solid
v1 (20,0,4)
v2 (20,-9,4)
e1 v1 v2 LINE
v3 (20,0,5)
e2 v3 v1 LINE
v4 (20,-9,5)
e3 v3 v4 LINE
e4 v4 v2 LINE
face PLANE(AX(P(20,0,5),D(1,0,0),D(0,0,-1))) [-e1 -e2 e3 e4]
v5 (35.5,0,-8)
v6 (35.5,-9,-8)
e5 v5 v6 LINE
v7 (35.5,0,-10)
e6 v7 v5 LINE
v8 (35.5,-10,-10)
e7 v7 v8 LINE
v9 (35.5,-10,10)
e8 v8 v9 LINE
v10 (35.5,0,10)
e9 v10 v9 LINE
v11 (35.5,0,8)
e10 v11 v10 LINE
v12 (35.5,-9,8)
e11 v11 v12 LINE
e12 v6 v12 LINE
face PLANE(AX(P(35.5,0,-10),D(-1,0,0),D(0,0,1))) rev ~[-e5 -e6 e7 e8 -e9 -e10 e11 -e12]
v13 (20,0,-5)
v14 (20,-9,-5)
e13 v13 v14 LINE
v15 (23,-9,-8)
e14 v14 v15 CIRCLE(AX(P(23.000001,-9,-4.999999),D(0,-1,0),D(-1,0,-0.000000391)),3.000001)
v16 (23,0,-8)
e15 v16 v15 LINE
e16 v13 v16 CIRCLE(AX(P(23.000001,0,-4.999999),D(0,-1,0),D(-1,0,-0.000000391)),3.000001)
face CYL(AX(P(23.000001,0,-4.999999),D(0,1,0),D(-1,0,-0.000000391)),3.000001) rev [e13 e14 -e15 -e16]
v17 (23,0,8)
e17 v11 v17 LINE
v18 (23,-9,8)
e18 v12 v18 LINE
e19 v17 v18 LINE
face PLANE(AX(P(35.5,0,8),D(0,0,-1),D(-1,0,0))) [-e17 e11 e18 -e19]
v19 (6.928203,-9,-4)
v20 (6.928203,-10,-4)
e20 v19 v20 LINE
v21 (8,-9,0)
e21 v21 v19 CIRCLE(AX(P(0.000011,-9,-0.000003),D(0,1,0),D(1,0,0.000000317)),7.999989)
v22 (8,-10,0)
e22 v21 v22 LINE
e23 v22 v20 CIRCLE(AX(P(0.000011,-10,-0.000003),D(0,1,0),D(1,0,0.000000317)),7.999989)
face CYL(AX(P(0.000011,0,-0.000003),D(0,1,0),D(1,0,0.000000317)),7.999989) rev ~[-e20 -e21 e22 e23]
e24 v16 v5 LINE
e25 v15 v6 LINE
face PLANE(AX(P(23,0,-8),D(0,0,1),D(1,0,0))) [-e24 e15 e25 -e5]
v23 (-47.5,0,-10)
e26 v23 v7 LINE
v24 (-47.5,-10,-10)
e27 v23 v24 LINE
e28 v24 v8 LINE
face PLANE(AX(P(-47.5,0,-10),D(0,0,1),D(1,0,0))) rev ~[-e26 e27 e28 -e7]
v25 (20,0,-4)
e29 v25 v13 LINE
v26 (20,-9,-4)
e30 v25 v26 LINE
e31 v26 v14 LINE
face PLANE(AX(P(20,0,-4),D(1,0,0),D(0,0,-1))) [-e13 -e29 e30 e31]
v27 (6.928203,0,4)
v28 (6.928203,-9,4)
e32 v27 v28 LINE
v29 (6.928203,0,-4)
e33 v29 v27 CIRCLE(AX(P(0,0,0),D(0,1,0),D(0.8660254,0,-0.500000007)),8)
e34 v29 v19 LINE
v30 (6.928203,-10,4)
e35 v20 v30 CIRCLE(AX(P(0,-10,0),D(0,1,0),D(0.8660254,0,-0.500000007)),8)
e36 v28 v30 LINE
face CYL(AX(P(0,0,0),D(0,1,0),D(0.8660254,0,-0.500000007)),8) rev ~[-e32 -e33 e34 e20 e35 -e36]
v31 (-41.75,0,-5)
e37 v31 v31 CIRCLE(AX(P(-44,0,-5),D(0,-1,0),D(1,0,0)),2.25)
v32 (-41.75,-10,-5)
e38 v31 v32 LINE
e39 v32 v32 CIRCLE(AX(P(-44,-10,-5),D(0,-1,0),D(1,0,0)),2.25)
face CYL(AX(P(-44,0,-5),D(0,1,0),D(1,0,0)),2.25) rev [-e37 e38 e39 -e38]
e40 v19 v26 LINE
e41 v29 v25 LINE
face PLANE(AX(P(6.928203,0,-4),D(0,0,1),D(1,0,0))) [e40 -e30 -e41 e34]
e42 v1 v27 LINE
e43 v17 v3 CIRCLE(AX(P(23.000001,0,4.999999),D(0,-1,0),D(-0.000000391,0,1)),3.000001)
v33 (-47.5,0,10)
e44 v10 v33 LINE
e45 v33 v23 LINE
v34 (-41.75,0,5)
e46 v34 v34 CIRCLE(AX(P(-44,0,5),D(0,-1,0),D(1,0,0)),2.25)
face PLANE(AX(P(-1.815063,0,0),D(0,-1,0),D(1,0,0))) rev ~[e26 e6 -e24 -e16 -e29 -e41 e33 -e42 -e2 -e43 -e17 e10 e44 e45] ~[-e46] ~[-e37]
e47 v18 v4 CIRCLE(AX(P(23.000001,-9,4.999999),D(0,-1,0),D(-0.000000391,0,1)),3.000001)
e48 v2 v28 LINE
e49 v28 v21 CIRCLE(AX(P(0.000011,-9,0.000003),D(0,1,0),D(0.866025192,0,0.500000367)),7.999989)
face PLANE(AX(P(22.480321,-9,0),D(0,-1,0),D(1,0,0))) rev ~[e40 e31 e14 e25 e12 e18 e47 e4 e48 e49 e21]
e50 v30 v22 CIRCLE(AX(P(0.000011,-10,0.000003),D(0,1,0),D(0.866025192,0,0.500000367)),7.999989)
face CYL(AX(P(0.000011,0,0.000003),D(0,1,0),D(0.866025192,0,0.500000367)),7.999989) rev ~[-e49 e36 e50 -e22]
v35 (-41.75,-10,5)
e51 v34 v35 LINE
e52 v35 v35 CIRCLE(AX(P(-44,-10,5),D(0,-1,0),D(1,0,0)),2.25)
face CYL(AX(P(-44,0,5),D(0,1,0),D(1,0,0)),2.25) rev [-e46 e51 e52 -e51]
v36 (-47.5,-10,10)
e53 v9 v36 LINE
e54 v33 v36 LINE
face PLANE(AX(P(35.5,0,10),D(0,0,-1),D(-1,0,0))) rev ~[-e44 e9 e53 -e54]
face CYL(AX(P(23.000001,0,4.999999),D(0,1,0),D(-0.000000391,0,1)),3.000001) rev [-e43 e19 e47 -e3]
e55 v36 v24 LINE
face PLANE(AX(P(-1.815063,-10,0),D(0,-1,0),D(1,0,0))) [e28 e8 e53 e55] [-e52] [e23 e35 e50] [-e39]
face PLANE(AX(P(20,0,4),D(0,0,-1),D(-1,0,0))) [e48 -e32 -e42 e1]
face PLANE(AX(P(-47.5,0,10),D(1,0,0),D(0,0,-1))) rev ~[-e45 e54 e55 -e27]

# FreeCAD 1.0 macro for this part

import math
import FreeCAD as App
import Part
import Sketcher

V = App.Vector
Q = App.Units.Quantity


def add_polygon(sketch, points):
    """Adds a closed chain of lines whose ends are joined by coincident constraints."""
    first, n = sketch.GeometryCount, len(points)
    for a, b in zip(points, points[1:] + points[:1]):
        sketch.addGeometry(Part.LineSegment(App.Vector(*a, 0), App.Vector(*b, 0)), False)
    for i in range(n):
        sketch.addConstraint(Sketcher.Constraint("Coincident", first + i, 2, first + (i + 1) % n, 1))

doc = App.newDocument("Part")
body = doc.addObject("PartDesign::Body", "Body")

# Sketch on XZ plane
sketch1 = body.newObject("Sketcher::SketchObject", "Sketch")
sketch1.AttachmentSupport = (doc.getObject("XZ_Plane"), [""])
sketch1.MapMode = "FlatFace"
add_polygon(sketch1, [(35.5, 10), (-47.5, 10), (-47.5, -10), (35.5, -10)])  # lines 0-3
sketch1.addGeometry(Part.ArcOfCircle(Part.Circle(V(0, 0, 0), V(0, 0, 1), 8), math.radians(30), math.radians(330)), False)  # 4
sketch1.addGeometry(Part.ArcOfCircle(Part.Circle(V(0, 0, 0), V(0, 0, 1), 8), math.radians(0), math.radians(30)), False)  # 5
sketch1.addGeometry(Part.ArcOfCircle(Part.Circle(V(0, 0, 0), V(0, 0, 1), 8), math.radians(-30), math.radians(0)), False)  # 6
sketch1.addGeometry(Part.Circle(V(-44, -5, 0), V(0, 0, 1), 2.2), False)  # 7
sketch1.addGeometry(Part.Circle(V(-44, 5, 0), V(0, 0, 1), 2.2), False)  # 8
sketch1.addConstraint([
    Sketcher.Constraint("Tangent", 4, 1, 5, 2),
    Sketcher.Constraint("Tangent", 5, 1, 6, 2),
    Sketcher.Constraint("Tangent", 6, 1, 4, 2),
    Sketcher.Constraint("Horizontal", 0),
    Sketcher.Constraint("Vertical", 1),
    Sketcher.Constraint("Horizontal", 2),
    Sketcher.Constraint("Vertical", 3),
    Sketcher.Constraint("Coincident", 4, 3, -1, 1),
    Sketcher.Constraint("Equal", 7, 8),
    Sketcher.Constraint("Symmetric", 7, 3, 8, 3, -1),
    Sketcher.Constraint("PointOnObject", 5, 1, -1),
    Sketcher.Constraint("Vertical", 4, 1, 6, 1),
    Sketcher.Constraint("Radius", 4, Q("8 mm")),
    Sketcher.Constraint("Diameter", 7, Q("4.5 mm")),
    Sketcher.Constraint("DistanceX", 0, 2, 0, 1, Q("83 mm")),
    Sketcher.Constraint("DistanceY", 1, 2, 1, 1, Q("20 mm")),
    Sketcher.Constraint("DistanceX", 7, 3, -1, 1, Q("44 mm")),
    Sketcher.Constraint("DistanceY", 7, 3, -1, 1, Q("5 mm")),
    Sketcher.Constraint("DistanceY", -1, 1, 0, 2, Q("10 mm")),
    Sketcher.Constraint("DistanceY", -1, 1, 4, 1, Q("4 mm")),
    Sketcher.Constraint("DistanceX", 0, 2, -1, 1, Q("47.5 mm")),
])
pad1 = body.newObject("PartDesign::Pad", "Pad")
pad1.Profile = sketch1
pad1.Length = 10

# Sketch on XZ plane
sketch2 = body.newObject("Sketcher::SketchObject", "Sketch001")
sketch2.AttachmentSupport = (doc.getObject("XZ_Plane"), [""])
sketch2.MapMode = "FlatFace"
sketch2.addGeometry([
    Part.LineSegment(V(35.5, -8, 0), V(35.5, 8, 0)),  # 0
    Part.LineSegment(V(35.5, 8, 0), V(23, 8, 0)),  # 1
    Part.ArcOfCircle(Part.Circle(V(23, 5, 0), V(0, 0, 1), 3), math.radians(90), math.radians(180)),  # 2
    Part.LineSegment(V(20, 5, 0), V(20, 4, 0)),  # 3
    Part.LineSegment(V(20, 4, 0), V(6.9, 4, 0)),  # 4
    Part.ArcOfCircle(Part.Circle(V(0, 0, 0), V(0, 0, 1), 8), math.radians(0), math.radians(30)),  # 5
    Part.ArcOfCircle(Part.Circle(V(0, 0, 0), V(0, 0, 1), 8), math.radians(-30), math.radians(0)),  # 6
    Part.LineSegment(V(6.9, -4, 0), V(20, -4, 0)),  # 7
    Part.LineSegment(V(20, -4, 0), V(20, -5, 0)),  # 8
    Part.ArcOfCircle(Part.Circle(V(23, -5, 0), V(0, 0, 1), 3), math.radians(-180), math.radians(-90)),  # 9
    Part.LineSegment(V(23, -8, 0), V(35.5, -8, 0)),  # 10
], False)
sketch2.addConstraint([
    Sketcher.Constraint("Coincident", 0, 2, 1, 1),
    Sketcher.Constraint("Tangent", 1, 2, 2, 1),
    Sketcher.Constraint("Tangent", 2, 2, 3, 1),
    Sketcher.Constraint("Coincident", 3, 2, 4, 1),
    Sketcher.Constraint("Coincident", 4, 2, 5, 2),
    Sketcher.Constraint("Tangent", 5, 1, 6, 2),
    Sketcher.Constraint("Coincident", 6, 1, 7, 1),
    Sketcher.Constraint("Coincident", 7, 2, 8, 1),
    Sketcher.Constraint("Tangent", 8, 2, 9, 1),
    Sketcher.Constraint("Tangent", 9, 2, 10, 1),
    Sketcher.Constraint("Coincident", 10, 2, 0, 1),
    Sketcher.Constraint("Vertical", 0),
    Sketcher.Constraint("Horizontal", 1),
    Sketcher.Constraint("Vertical", 3),
    Sketcher.Constraint("Horizontal", 4),
    Sketcher.Constraint("Horizontal", 7),
    Sketcher.Constraint("Vertical", 8),
    Sketcher.Constraint("Horizontal", 10),
    Sketcher.Constraint("Equal", 5, 6),
    Sketcher.Constraint("Equal", 2, 9),
    Sketcher.Constraint("Symmetric", 2, 3, 9, 3, -1),
    Sketcher.Constraint("Symmetric", 4, 2, 6, 1, -1),
    Sketcher.Constraint("PointOnObject", 5, 1, -1),
    Sketcher.Constraint("Radius", 2, Q("3.000001 mm")),
    Sketcher.Constraint("DistanceY", 0, 1, 0, 2, Q("16 mm")),
    Sketcher.Constraint("DistanceY", 3, 2, 3, 1, Q("1 mm")),
    Sketcher.Constraint("DistanceX", 1, 2, 1, 1, Q("12.5 mm")),
    Sketcher.Constraint("DistanceX", -1, 1, 2, 3, Q("23.000001 mm")),
    Sketcher.Constraint("DistanceX", -1, 1, 5, 1, Q("8 mm")),
    Sketcher.Constraint("Radius", 5, Q("7.999989 mm")),
])
pocket1 = body.newObject("PartDesign::Pocket", "Pocket")
pocket1.Profile = sketch2
pocket1.Length = 9
pocket1.Reversed = True

doc.recompute()
